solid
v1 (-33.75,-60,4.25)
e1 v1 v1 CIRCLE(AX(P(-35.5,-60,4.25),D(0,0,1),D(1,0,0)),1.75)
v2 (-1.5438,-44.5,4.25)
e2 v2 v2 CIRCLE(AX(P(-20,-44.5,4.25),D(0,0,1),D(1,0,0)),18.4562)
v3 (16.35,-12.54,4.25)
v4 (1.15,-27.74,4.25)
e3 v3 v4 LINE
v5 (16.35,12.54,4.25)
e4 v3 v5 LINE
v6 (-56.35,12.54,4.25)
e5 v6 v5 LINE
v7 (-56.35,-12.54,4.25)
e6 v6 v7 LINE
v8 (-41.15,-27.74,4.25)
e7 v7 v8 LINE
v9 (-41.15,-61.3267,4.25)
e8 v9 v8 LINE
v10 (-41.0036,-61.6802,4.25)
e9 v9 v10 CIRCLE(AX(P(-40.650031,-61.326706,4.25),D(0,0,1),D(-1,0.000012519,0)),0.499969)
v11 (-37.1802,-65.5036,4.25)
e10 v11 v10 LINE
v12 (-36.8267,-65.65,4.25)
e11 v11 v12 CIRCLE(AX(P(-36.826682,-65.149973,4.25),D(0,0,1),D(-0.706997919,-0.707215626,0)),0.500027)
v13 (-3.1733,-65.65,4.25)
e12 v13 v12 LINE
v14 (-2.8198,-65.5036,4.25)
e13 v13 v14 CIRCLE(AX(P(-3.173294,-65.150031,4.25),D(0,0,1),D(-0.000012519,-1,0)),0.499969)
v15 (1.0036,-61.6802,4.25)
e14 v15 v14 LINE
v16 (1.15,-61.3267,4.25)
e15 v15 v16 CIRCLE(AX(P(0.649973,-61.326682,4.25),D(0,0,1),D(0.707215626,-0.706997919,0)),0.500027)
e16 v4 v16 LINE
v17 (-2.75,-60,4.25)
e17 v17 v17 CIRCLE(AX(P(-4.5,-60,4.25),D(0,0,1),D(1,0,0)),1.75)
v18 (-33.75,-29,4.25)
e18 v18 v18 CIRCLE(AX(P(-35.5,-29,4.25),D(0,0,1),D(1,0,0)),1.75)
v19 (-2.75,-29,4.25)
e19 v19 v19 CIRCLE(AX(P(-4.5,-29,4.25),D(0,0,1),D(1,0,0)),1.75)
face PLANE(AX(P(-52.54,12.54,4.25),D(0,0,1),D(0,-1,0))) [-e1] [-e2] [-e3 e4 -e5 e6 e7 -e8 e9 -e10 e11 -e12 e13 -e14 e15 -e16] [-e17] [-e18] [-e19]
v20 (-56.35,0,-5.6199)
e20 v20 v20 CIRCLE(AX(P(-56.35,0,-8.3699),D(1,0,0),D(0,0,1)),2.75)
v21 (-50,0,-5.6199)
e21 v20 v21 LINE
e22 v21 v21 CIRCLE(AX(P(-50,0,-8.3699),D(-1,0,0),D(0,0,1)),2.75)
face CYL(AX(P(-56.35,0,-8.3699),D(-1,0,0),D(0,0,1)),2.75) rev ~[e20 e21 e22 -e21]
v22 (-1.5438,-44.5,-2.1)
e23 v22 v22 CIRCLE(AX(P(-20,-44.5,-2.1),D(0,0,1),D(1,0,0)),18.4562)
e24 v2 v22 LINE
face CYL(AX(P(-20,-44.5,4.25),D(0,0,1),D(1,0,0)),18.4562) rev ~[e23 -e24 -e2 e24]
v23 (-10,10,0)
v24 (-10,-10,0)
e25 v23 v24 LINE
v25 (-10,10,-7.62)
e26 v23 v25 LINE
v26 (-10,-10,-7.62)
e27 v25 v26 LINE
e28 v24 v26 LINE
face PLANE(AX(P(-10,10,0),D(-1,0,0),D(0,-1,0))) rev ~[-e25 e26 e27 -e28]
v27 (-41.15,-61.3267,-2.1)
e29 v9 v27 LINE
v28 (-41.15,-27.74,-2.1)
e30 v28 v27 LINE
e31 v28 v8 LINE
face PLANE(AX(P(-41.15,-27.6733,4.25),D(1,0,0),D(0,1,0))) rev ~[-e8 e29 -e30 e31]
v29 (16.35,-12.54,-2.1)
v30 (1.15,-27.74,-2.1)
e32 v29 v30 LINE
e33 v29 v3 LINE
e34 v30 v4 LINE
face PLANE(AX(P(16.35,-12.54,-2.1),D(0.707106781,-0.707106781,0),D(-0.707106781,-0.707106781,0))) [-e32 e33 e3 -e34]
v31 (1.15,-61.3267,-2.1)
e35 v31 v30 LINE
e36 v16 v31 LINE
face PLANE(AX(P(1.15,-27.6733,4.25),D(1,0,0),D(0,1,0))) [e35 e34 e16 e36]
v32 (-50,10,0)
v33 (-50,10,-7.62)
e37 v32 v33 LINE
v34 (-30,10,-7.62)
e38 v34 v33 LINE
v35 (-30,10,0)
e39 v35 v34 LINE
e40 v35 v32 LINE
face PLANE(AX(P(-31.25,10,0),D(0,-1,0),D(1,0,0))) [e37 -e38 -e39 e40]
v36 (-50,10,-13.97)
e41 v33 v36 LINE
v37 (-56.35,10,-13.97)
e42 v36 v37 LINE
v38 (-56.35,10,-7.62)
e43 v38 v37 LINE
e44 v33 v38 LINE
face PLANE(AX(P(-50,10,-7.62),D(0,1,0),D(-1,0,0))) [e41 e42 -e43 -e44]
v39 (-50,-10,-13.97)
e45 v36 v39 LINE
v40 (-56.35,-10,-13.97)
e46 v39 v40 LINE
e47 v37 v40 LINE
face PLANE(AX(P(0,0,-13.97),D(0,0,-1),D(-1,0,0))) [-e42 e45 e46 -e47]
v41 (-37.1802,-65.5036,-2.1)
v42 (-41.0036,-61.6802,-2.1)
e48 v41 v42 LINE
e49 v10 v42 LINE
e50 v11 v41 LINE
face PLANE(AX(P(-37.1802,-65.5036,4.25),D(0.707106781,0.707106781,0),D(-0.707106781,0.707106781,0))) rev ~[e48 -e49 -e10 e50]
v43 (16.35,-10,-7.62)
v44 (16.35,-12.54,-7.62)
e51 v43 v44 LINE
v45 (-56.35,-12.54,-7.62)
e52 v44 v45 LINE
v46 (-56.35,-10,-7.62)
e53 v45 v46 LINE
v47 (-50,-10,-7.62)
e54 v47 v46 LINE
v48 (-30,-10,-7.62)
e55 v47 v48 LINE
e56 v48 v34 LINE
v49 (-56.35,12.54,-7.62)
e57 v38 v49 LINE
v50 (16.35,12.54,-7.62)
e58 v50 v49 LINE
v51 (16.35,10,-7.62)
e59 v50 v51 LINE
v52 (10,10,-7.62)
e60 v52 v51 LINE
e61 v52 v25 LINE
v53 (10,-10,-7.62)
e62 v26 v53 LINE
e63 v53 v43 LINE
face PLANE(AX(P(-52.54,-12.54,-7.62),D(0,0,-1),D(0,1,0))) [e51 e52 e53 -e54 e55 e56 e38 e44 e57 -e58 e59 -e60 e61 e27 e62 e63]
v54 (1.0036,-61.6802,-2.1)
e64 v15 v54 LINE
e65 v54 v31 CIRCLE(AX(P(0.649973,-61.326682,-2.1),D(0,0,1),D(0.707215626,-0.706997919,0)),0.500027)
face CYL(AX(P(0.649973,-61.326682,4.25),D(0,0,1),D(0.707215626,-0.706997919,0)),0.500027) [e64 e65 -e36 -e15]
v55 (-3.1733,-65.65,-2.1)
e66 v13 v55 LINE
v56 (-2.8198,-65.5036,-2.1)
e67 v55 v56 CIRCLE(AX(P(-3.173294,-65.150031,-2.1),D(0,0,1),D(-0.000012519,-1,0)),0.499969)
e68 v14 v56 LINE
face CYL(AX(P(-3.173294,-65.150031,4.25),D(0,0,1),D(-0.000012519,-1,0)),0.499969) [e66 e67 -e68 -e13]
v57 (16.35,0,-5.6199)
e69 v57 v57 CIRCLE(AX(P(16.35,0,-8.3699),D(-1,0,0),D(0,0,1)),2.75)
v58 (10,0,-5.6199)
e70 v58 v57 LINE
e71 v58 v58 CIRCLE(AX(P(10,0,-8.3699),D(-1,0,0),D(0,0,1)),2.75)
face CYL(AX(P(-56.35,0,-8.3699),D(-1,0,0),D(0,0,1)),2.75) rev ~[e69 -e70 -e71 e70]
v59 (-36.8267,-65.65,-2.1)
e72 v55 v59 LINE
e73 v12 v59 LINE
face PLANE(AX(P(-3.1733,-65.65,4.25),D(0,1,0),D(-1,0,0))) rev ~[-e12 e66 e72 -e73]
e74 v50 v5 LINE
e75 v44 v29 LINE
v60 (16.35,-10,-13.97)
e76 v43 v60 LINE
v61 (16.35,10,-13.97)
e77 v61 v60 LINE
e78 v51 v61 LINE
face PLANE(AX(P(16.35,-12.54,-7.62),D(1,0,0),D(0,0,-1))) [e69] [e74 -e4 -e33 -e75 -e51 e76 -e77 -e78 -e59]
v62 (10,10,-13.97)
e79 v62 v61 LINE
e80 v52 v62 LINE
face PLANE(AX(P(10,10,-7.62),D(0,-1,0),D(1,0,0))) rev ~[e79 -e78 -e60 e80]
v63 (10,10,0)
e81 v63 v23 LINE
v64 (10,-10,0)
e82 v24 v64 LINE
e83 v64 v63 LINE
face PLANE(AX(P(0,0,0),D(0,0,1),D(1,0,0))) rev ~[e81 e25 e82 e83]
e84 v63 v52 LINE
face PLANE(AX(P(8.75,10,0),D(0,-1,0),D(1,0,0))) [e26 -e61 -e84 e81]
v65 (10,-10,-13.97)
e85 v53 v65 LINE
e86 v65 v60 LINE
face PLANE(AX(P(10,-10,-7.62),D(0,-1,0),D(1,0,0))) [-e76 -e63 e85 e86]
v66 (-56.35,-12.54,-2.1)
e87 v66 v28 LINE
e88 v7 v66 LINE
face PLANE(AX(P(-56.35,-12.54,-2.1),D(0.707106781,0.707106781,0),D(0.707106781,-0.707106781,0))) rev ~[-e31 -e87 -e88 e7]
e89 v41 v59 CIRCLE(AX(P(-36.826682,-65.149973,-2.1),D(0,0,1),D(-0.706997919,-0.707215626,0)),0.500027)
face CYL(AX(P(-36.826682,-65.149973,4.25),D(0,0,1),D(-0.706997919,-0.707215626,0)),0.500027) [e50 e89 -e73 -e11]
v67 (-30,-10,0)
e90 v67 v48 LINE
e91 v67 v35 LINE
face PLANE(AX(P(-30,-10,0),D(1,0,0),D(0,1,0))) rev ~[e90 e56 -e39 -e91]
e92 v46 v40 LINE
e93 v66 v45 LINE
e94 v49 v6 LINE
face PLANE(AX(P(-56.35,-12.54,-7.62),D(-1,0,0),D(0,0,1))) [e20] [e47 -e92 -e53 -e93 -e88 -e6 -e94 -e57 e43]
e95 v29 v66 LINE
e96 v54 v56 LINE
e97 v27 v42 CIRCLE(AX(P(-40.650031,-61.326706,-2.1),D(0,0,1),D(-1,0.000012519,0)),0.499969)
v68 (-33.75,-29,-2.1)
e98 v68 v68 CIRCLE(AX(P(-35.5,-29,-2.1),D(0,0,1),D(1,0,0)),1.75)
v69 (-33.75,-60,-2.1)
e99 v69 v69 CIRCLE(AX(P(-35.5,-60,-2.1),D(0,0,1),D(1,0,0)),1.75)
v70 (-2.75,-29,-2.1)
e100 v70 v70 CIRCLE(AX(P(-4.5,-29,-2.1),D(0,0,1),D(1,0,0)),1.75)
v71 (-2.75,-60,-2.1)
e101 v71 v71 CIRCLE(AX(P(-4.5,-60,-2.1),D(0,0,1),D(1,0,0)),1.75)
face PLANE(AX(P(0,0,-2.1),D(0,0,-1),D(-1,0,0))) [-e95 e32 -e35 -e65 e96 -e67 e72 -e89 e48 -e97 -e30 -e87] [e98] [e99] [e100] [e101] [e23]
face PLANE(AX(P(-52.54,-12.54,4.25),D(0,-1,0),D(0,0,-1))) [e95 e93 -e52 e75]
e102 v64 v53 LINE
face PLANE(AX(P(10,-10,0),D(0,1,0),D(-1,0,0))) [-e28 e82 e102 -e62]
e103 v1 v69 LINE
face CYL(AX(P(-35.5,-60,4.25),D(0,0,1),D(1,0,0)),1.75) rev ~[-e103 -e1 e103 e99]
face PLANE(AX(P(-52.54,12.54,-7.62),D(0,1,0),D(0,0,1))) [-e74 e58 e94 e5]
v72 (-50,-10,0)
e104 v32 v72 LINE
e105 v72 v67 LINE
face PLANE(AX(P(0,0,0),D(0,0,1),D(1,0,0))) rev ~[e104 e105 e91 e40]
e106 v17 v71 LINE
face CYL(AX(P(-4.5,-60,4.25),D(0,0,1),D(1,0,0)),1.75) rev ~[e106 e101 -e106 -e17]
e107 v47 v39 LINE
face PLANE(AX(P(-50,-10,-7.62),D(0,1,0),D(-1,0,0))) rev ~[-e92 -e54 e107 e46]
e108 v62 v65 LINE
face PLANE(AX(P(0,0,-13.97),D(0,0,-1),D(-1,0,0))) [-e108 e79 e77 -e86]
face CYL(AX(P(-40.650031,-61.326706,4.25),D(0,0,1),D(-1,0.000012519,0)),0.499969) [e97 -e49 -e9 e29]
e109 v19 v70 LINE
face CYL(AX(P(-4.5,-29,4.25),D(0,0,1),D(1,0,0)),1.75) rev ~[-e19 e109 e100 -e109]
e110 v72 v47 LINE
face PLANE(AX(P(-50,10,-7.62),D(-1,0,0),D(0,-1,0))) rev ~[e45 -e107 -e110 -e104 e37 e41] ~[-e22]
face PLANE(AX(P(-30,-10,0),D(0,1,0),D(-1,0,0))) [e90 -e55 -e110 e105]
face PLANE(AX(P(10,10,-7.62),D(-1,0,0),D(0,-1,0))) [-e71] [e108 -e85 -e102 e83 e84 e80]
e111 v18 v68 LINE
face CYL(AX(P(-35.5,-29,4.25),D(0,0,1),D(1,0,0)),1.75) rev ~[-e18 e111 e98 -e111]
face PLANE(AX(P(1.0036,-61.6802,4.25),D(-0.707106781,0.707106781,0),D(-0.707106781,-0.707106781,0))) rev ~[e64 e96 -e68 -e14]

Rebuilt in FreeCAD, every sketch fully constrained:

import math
import FreeCAD as App
import Part
import Sketcher


def add_polygon(sketch, points):
    """Adds a closed chain of lines whose ends are joined by coincident constraints."""
    first, n = sketch.GeometryCount, len(points)
    for a, b in zip(points, points[1:] + points[:1]):
        sketch.addGeometry(Part.LineSegment(App.Vector(*a, 0), App.Vector(*b, 0)), False)
    for i in range(n):
        sketch.addConstraint(Sketcher.Constraint("Coincident", first + i, 2, first + (i + 1) % n, 1))

doc = App.newDocument("Part")
body = doc.addObject("PartDesign::Body", "Body")

# Sketch on XY plane
sketch1 = doc.addObject("Sketcher::SketchObject", "Sketch")
body.addObject(sketch1)
sketch1.AttachmentSupport = (doc.XY_Plane, [""])
sketch1.MapMode = "FlatFace"
add_polygon(sketch1, [(-53, 13), (-53, -13), (13, -13), (13, 13)])  # lines 0-3
add_polygon(sketch1, [(-30, -10), (-50, -10), (-50, 10), (-30, 10)])  # lines 4-7
add_polygon(sketch1, [(10, -10), (-10, -10), (-10, 10), (10, 10)])  # lines 8-11
sketch1.addConstraint([
    Sketcher.Constraint("Vertical", 0),
    Sketcher.Constraint("Horizontal", 1),
    Sketcher.Constraint("Vertical", 2),
    Sketcher.Constraint("Horizontal", 3),
    Sketcher.Constraint("Horizontal", 4),
    Sketcher.Constraint("Vertical", 5),
    Sketcher.Constraint("Horizontal", 6),
    Sketcher.Constraint("Vertical", 7),
    Sketcher.Constraint("Horizontal", 8),
    Sketcher.Constraint("Vertical", 9),
    Sketcher.Constraint("Horizontal", 10),
    Sketcher.Constraint("Vertical", 11),
    Sketcher.Constraint("Symmetric", 8, 2, 10, 2, -1, 1),
    Sketcher.Constraint("Horizontal", 7, 2, 8, 2),
    Sketcher.Constraint("Horizontal", 6, 2, 9, 2),
    Sketcher.Constraint("Equal", 6, 8),
    Sketcher.Constraint("Equal", 10, 5),
    Sketcher.Constraint("DistanceX", 4, 2, 4, 1, 20.0),
    Sketcher.Constraint("DistanceX", 4, 2, -1, 1, 50.0),
    Sketcher.Constraint("DistanceX", 1, 1, 1, 2, 65.08),
    Sketcher.Constraint("DistanceY", 0, 2, 0, 1, 25.08),
    Sketcher.Constraint("DistanceX", 0, 2, -1, 1, 52.54),
    Sketcher.Constraint("DistanceY", 0, 2, -1, 1, 12.54),
])
pad1 = doc.addObject("PartDesign::Pad", "Pad")
body.addObject(pad1)
pad1.Profile = sketch1
pad1.Length = 7.62
pad1.Reversed = True

# Sketch on XY plane
sketch2 = doc.addObject("Sketcher::SketchObject", "Sketch001")
body.addObject(sketch2)
sketch2.AttachmentSupport = (doc.XY_Plane, [""])
sketch2.MapMode = "FlatFace"
add_polygon(sketch2, [(-53, 13), (-53, -13), (13, -13), (13, 13)])  # lines 0-3
sketch2.addConstraint([
    Sketcher.Constraint("Vertical", 0),
    Sketcher.Constraint("Horizontal", 1),
    Sketcher.Constraint("Vertical", 2),
    Sketcher.Constraint("Horizontal", 3),
    Sketcher.Constraint("DistanceX", 1, 1, 1, 2, 65.08),
    Sketcher.Constraint("DistanceY", 0, 2, 0, 1, 25.08),
    Sketcher.Constraint("DistanceX", 0, 2, -1, 1, 52.54),
    Sketcher.Constraint("DistanceY", 0, 2, -1, 1, 12.54),
])
pad2 = doc.addObject("PartDesign::Pad", "Pad001")
body.addObject(pad2)
pad2.Profile = sketch2
pad2.Length = 4.25

# Sketch on XY plane
sketch3 = doc.addObject("Sketcher::SketchObject", "Sketch002")
body.addObject(sketch3)
sketch3.AttachmentSupport = (doc.XY_Plane, [""])
sketch3.MapMode = "FlatFace"
sketch3.AttachmentOffset = App.Placement(App.Vector(0, 0, 4.25), App.Rotation())
sketch3.addGeometry([
    Part.LineSegment(App.Vector(1.15, -12.54, 0), App.Vector(-41.15, -12.54, 0)),  # 0
    Part.LineSegment(App.Vector(-41.15, -12.54, 0), App.Vector(-41.15, -61.33, 0)),  # 1
    Part.ArcOfCircle(Part.Circle(App.Vector(-40.65, -61.33, 0), App.Vector(0, 0, 1), 0.5), math.radians(180), math.radians(225)),  # 2
    Part.LineSegment(App.Vector(-41, -61.68, 0), App.Vector(-37.18, -65.5, 0)),  # 3
    Part.ArcOfCircle(Part.Circle(App.Vector(-36.83, -65.15, 0), App.Vector(0, 0, 1), 0.5), math.radians(-135), math.radians(-90)),  # 4
    Part.LineSegment(App.Vector(-36.83, -65.65, 0), App.Vector(-3.17, -65.65, 0)),  # 5
    Part.ArcOfCircle(Part.Circle(App.Vector(-3.17, -65.15, 0), App.Vector(0, 0, 1), 0.5), math.radians(-90), math.radians(-45)),  # 6
    Part.LineSegment(App.Vector(-2.82, -65.5, 0), App.Vector(1, -61.68, 0)),  # 7
    Part.ArcOfCircle(Part.Circle(App.Vector(0.65, -61.33, 0), App.Vector(0, 0, 1), 0.5), math.radians(-45), math.radians(0)),  # 8
    Part.LineSegment(App.Vector(1.15, -61.33, 0), App.Vector(1.15, -12.54, 0)),  # 9
    Part.Circle(App.Vector(-35.5, -60, 0), App.Vector(0, 0, 1), 1.75),  # 10
    Part.Circle(App.Vector(-35.5, -29, 0), App.Vector(0, 0, 1), 1.75),  # 11
    Part.Circle(App.Vector(-4.5, -60, 0), App.Vector(0, 0, 1), 1.75),  # 12
    Part.Circle(App.Vector(-20, -44.5, 0), App.Vector(0, 0, 1), 18.46),  # 13
    Part.Circle(App.Vector(-4.5, -29, 0), App.Vector(0, 0, 1), 1.75),  # 14
], False)
sketch3.addConstraint([
    Sketcher.Constraint("Coincident", 0, 2, 1, 1),
    Sketcher.Constraint("Tangent", 1, 2, 2, 1),
    Sketcher.Constraint("Tangent", 2, 2, 3, 1),
    Sketcher.Constraint("Tangent", 3, 2, 4, 1),
    Sketcher.Constraint("Tangent", 4, 2, 5, 1),
    Sketcher.Constraint("Tangent", 5, 2, 6, 1),
    Sketcher.Constraint("Tangent", 6, 2, 7, 1),
    Sketcher.Constraint("Tangent", 7, 2, 8, 1),
    Sketcher.Constraint("Tangent", 8, 2, 9, 1),
    Sketcher.Constraint("Coincident", 9, 2, 0, 1),
    Sketcher.Constraint("Horizontal", 0),
    Sketcher.Constraint("Vertical", 1),
    Sketcher.Constraint("Horizontal", 5),
    Sketcher.Constraint("Vertical", 9),
    Sketcher.Constraint("Equal", 2, 4),
    Sketcher.Constraint("Equal", 4, 6),
    Sketcher.Constraint("Equal", 6, 8),
    Sketcher.Constraint("Equal", 10, 11),
    Sketcher.Constraint("Equal", 11, 12),
    Sketcher.Constraint("Equal", 12, 14),
    Sketcher.Constraint("Perpendicular", 3, 7),
    Sketcher.Constraint("Horizontal", 2, 3, 8, 3),
    Sketcher.Constraint("Horizontal", 10, 3, 12, 3),
    Sketcher.Constraint("Horizontal", 11, 3, 14, 3),
    Sketcher.Constraint("Horizontal", 3, 2, 6, 2),
    Sketcher.Constraint("Vertical", 10, 3, 11, 3),
    Sketcher.Constraint("Vertical", 12, 3, 14, 3),
    Sketcher.Constraint("Diameter", 10, 3.5),
    Sketcher.Constraint("Radius", 2, 0.5),
    Sketcher.Constraint("DistanceX", 0, 2, 0, 1, 42.3),
    Sketcher.Constraint("DistanceY", 10, 3, -1, 1, 60.0),
    Sketcher.Constraint("DistanceY", 11, 3, -1, 1, 29.0),
    Sketcher.Constraint("DistanceX", 13, 3, -1, 1, 20.0),
    Sketcher.Constraint("DistanceX", 10, 3, 12, 3, 31.0),
    Sketcher.Constraint("Diameter", 13, 36.9124),
    Sketcher.Constraint("DistanceX", 10, 3, -1, 1, 35.5),
    Sketcher.Constraint("DistanceY", 13, 3, -1, 1, 44.5),
    Sketcher.Constraint("DistanceX", 2, 3, -1, 1, 40.65),
    Sketcher.Constraint("DistanceY", 4, 3, -1, 1, 65.15),
    Sketcher.Constraint("DistanceY", 0, 2, -1, 1, 12.54),
    Sketcher.Constraint("Distance", 3, 5.407),
])
pad3 = doc.addObject("PartDesign::Pad", "Pad002")
body.addObject(pad3)
pad3.Profile = sketch3
pad3.Length = 6.35
pad3.Reversed = True

# Sketch on YZ plane
sketch4 = doc.addObject("Sketcher::SketchObject", "Sketch003")
body.addObject(sketch4)
sketch4.AttachmentSupport = (doc.YZ_Plane, [""])
sketch4.MapMode = "FlatFace"
sketch4.AttachmentOffset = App.Placement(App.Vector(0, 0, 12.54), App.Rotation())
add_polygon(sketch4, [(-13, 4), (-13, -8), (13, -8), (13, 4)])  # lines 0-3
sketch4.addConstraint([
    Sketcher.Constraint("Vertical", 0),
    Sketcher.Constraint("Horizontal", 1),
    Sketcher.Constraint("Vertical", 2),
    Sketcher.Constraint("Horizontal", 3),
    Sketcher.Constraint("DistanceX", 1, 1, 1, 2, 25.08),
    Sketcher.Constraint("DistanceY", 0, 2, 0, 1, 11.87),
    Sketcher.Constraint("DistanceX", 0, 2, -1, 1, 12.54),
    Sketcher.Constraint("DistanceY", 0, 2, -1, 1, 7.62),
])
pad4 = doc.addObject("PartDesign::Pad", "Pad003")
body.addObject(pad4)
pad4.Profile = sketch4
pad4.Length = 3.81

# Sketch on YZ plane
sketch5 = doc.addObject("Sketcher::SketchObject", "Sketch004")
body.addObject(sketch5)
sketch5.AttachmentSupport = (doc.YZ_Plane, [""])
sketch5.MapMode = "FlatFace"
sketch5.AttachmentOffset = App.Placement(App.Vector(0, 0, -52.54), App.Rotation())
add_polygon(sketch5, [(13, 4), (13, -8), (-13, -8), (-13, 4)])  # lines 0-3
sketch5.addConstraint([
    Sketcher.Constraint("Vertical", 0),
    Sketcher.Constraint("Horizontal", 1),
    Sketcher.Constraint("Vertical", 2),
    Sketcher.Constraint("Horizontal", 3),
    Sketcher.Constraint("DistanceX", 1, 2, 1, 1, 25.08),
    Sketcher.Constraint("DistanceY", 0, 2, 0, 1, 11.87),
    Sketcher.Constraint("DistanceX", -1, 1, 0, 2, 12.54),
    Sketcher.Constraint("DistanceY", 0, 2, -1, 1, 7.62),
])
pad5 = doc.addObject("PartDesign::Pad", "Pad004")
body.addObject(pad5)
pad5.Profile = sketch5
pad5.Length = 3.81
pad5.Reversed = True

# Sketch on XY plane
sketch6 = doc.addObject("Sketcher::SketchObject", "Sketch005")
body.addObject(sketch6)
sketch6.AttachmentSupport = (doc.XY_Plane, [""])
sketch6.MapMode = "FlatFace"
sketch6.AttachmentOffset = App.Placement(App.Vector(0, 0, -2.1), App.Rotation())
add_polygon(sketch6, [(1, -28), (1, -13), (16, -13)])  # lines 0-2
add_polygon(sketch6, [(-56, -13), (-41, -13), (-41, -28)])  # lines 3-5
sketch6.addConstraint([
    Sketcher.Constraint("Vertical", 0),
    Sketcher.Constraint("Horizontal", 1),
    Sketcher.Constraint("Horizontal", 3),
    Sketcher.Constraint("Vertical", 4),
    Sketcher.Constraint("Perpendicular", 2, 5),
    Sketcher.Constraint("Horizontal", 1, 2, 3, 2),
    Sketcher.Constraint("Horizontal", 2, 2, 4, 2),
    Sketcher.Constraint("Equal", 1, 3),
    Sketcher.Constraint("DistanceX", 1, 1, 1, 2, 15.2),
    Sketcher.Constraint("DistanceX", 3, 2, 0, 2, 42.3),
    Sketcher.Constraint("DistanceX", -1, 1, 0, 2, 1.15),
    Sketcher.Constraint("DistanceY", 0, 2, -1, 1, 12.54),
])
pad6 = doc.addObject("PartDesign::Pad", "Pad005")
body.addObject(pad6)
pad6.Profile = sketch6
pad6.Length = 6.35

# Sketch on XY plane
sketch7 = doc.addObject("Sketcher::SketchObject", "Sketch006")
body.addObject(sketch7)
sketch7.AttachmentSupport = (doc.XY_Plane, [""])
sketch7.MapMode = "FlatFace"
sketch7.AttachmentOffset = App.Placement(App.Vector(0, 0, -7.62), App.Rotation())
add_polygon(sketch7, [(10, 10), (16, 10), (16, -10), (10, -10)])  # lines 0-3
add_polygon(sketch7, [(-56, -10), (-56, 10), (-50, 10), (-50, -10)])  # lines 4-7
sketch7.addConstraint([
    Sketcher.Constraint("Horizontal", 0),
    Sketcher.Constraint("Vertical", 1),
    Sketcher.Constraint("Horizontal", 2),
    Sketcher.Constraint("Vertical", 3),
    Sketcher.Constraint("Vertical", 4),
    Sketcher.Constraint("Horizontal", 5),
    Sketcher.Constraint("Vertical", 6),
    Sketcher.Constraint("Horizontal", 7),
    Sketcher.Constraint("Horizontal", 3, 2, 4, 2),
    Sketcher.Constraint("Horizontal", 2, 2, 6, 2),
    Sketcher.Constraint("Equal", 2, 5),
    Sketcher.Constraint("DistanceY", 1, 2, 1, 1, 20.0),
    Sketcher.Constraint("DistanceY", -1, 1, 0, 2, 10.0),
    Sketcher.Constraint("DistanceX", -1, 1, 2, 2, 10.0),
    Sketcher.Constraint("DistanceX", 5, 2, -1, 1, 50.0),
    Sketcher.Constraint("DistanceX", 0, 1, 0, 2, 6.35),
])
pad7 = doc.addObject("PartDesign::Pad", "Pad006")
body.addObject(pad7)
pad7.Profile = sketch7
pad7.Length = 6.35
pad7.Reversed = True

# Sketch on YZ plane
sketch8 = doc.addObject("Sketcher::SketchObject", "Sketch007")
body.addObject(sketch8)
sketch8.AttachmentSupport = (doc.YZ_Plane, [""])
sketch8.MapMode = "FlatFace"
sketch8.AttachmentOffset = App.Placement(App.Vector(0, 0, -56.35), App.Rotation())
sketch8.addGeometry(Part.Circle(App.Vector(0, -8.4, 0), App.Vector(0, 0, 1), 2.8), False)
sketch8.addConstraint([
    Sketcher.Constraint("PointOnObject", 0, 3, -2),
    Sketcher.Constraint("Diameter", 0, 5.5),
    Sketcher.Constraint("DistanceY", 0, 3, -1, 1, 8.37),
])
pocket1 = doc.addObject("PartDesign::Pocket", "Pocket")
body.addObject(pocket1)
pocket1.Profile = sketch8
pocket1.Type = "ThroughAll"
pocket1.Reversed = True

# Sketch on YZ plane
sketch9 = doc.addObject("Sketcher::SketchObject", "Sketch008")
body.addObject(sketch9)
sketch9.AttachmentSupport = (doc.YZ_Plane, [""])
sketch9.MapMode = "FlatFace"
sketch9.AttachmentOffset = App.Placement(App.Vector(0, 0, -30), App.Rotation())
sketch9.addGeometry([
    Part.LineSegment(App.Vector(2.6, -7.6, 0), App.Vector(-2.6, -7.6, 0)),
    Part.ArcOfCircle(Part.Circle(App.Vector(0, -8.4, 0), App.Vector(0, 0, 1), 2.8), math.radians(16), math.radians(164)),
], False)
sketch9.addConstraint([
    Sketcher.Constraint("Coincident", 0, 1, 1, 1),
    Sketcher.Constraint("Coincident", 1, 2, 0, 2),
    Sketcher.Constraint("Horizontal", 0),
    Sketcher.Constraint("PointOnObject", 1, 3, -2),
    Sketcher.Constraint("Radius", 1, 2.75),
    Sketcher.Constraint("DistanceY", 1, 3, -1, 1, 8.37),
    Sketcher.Constraint("DistanceY", 0, 1, -1, 1, 7.62),
])
pad8 = doc.addObject("PartDesign::Pad", "Pad007")
body.addObject(pad8)
pad8.Profile = sketch9
pad8.Length = 20

doc.recompute()
